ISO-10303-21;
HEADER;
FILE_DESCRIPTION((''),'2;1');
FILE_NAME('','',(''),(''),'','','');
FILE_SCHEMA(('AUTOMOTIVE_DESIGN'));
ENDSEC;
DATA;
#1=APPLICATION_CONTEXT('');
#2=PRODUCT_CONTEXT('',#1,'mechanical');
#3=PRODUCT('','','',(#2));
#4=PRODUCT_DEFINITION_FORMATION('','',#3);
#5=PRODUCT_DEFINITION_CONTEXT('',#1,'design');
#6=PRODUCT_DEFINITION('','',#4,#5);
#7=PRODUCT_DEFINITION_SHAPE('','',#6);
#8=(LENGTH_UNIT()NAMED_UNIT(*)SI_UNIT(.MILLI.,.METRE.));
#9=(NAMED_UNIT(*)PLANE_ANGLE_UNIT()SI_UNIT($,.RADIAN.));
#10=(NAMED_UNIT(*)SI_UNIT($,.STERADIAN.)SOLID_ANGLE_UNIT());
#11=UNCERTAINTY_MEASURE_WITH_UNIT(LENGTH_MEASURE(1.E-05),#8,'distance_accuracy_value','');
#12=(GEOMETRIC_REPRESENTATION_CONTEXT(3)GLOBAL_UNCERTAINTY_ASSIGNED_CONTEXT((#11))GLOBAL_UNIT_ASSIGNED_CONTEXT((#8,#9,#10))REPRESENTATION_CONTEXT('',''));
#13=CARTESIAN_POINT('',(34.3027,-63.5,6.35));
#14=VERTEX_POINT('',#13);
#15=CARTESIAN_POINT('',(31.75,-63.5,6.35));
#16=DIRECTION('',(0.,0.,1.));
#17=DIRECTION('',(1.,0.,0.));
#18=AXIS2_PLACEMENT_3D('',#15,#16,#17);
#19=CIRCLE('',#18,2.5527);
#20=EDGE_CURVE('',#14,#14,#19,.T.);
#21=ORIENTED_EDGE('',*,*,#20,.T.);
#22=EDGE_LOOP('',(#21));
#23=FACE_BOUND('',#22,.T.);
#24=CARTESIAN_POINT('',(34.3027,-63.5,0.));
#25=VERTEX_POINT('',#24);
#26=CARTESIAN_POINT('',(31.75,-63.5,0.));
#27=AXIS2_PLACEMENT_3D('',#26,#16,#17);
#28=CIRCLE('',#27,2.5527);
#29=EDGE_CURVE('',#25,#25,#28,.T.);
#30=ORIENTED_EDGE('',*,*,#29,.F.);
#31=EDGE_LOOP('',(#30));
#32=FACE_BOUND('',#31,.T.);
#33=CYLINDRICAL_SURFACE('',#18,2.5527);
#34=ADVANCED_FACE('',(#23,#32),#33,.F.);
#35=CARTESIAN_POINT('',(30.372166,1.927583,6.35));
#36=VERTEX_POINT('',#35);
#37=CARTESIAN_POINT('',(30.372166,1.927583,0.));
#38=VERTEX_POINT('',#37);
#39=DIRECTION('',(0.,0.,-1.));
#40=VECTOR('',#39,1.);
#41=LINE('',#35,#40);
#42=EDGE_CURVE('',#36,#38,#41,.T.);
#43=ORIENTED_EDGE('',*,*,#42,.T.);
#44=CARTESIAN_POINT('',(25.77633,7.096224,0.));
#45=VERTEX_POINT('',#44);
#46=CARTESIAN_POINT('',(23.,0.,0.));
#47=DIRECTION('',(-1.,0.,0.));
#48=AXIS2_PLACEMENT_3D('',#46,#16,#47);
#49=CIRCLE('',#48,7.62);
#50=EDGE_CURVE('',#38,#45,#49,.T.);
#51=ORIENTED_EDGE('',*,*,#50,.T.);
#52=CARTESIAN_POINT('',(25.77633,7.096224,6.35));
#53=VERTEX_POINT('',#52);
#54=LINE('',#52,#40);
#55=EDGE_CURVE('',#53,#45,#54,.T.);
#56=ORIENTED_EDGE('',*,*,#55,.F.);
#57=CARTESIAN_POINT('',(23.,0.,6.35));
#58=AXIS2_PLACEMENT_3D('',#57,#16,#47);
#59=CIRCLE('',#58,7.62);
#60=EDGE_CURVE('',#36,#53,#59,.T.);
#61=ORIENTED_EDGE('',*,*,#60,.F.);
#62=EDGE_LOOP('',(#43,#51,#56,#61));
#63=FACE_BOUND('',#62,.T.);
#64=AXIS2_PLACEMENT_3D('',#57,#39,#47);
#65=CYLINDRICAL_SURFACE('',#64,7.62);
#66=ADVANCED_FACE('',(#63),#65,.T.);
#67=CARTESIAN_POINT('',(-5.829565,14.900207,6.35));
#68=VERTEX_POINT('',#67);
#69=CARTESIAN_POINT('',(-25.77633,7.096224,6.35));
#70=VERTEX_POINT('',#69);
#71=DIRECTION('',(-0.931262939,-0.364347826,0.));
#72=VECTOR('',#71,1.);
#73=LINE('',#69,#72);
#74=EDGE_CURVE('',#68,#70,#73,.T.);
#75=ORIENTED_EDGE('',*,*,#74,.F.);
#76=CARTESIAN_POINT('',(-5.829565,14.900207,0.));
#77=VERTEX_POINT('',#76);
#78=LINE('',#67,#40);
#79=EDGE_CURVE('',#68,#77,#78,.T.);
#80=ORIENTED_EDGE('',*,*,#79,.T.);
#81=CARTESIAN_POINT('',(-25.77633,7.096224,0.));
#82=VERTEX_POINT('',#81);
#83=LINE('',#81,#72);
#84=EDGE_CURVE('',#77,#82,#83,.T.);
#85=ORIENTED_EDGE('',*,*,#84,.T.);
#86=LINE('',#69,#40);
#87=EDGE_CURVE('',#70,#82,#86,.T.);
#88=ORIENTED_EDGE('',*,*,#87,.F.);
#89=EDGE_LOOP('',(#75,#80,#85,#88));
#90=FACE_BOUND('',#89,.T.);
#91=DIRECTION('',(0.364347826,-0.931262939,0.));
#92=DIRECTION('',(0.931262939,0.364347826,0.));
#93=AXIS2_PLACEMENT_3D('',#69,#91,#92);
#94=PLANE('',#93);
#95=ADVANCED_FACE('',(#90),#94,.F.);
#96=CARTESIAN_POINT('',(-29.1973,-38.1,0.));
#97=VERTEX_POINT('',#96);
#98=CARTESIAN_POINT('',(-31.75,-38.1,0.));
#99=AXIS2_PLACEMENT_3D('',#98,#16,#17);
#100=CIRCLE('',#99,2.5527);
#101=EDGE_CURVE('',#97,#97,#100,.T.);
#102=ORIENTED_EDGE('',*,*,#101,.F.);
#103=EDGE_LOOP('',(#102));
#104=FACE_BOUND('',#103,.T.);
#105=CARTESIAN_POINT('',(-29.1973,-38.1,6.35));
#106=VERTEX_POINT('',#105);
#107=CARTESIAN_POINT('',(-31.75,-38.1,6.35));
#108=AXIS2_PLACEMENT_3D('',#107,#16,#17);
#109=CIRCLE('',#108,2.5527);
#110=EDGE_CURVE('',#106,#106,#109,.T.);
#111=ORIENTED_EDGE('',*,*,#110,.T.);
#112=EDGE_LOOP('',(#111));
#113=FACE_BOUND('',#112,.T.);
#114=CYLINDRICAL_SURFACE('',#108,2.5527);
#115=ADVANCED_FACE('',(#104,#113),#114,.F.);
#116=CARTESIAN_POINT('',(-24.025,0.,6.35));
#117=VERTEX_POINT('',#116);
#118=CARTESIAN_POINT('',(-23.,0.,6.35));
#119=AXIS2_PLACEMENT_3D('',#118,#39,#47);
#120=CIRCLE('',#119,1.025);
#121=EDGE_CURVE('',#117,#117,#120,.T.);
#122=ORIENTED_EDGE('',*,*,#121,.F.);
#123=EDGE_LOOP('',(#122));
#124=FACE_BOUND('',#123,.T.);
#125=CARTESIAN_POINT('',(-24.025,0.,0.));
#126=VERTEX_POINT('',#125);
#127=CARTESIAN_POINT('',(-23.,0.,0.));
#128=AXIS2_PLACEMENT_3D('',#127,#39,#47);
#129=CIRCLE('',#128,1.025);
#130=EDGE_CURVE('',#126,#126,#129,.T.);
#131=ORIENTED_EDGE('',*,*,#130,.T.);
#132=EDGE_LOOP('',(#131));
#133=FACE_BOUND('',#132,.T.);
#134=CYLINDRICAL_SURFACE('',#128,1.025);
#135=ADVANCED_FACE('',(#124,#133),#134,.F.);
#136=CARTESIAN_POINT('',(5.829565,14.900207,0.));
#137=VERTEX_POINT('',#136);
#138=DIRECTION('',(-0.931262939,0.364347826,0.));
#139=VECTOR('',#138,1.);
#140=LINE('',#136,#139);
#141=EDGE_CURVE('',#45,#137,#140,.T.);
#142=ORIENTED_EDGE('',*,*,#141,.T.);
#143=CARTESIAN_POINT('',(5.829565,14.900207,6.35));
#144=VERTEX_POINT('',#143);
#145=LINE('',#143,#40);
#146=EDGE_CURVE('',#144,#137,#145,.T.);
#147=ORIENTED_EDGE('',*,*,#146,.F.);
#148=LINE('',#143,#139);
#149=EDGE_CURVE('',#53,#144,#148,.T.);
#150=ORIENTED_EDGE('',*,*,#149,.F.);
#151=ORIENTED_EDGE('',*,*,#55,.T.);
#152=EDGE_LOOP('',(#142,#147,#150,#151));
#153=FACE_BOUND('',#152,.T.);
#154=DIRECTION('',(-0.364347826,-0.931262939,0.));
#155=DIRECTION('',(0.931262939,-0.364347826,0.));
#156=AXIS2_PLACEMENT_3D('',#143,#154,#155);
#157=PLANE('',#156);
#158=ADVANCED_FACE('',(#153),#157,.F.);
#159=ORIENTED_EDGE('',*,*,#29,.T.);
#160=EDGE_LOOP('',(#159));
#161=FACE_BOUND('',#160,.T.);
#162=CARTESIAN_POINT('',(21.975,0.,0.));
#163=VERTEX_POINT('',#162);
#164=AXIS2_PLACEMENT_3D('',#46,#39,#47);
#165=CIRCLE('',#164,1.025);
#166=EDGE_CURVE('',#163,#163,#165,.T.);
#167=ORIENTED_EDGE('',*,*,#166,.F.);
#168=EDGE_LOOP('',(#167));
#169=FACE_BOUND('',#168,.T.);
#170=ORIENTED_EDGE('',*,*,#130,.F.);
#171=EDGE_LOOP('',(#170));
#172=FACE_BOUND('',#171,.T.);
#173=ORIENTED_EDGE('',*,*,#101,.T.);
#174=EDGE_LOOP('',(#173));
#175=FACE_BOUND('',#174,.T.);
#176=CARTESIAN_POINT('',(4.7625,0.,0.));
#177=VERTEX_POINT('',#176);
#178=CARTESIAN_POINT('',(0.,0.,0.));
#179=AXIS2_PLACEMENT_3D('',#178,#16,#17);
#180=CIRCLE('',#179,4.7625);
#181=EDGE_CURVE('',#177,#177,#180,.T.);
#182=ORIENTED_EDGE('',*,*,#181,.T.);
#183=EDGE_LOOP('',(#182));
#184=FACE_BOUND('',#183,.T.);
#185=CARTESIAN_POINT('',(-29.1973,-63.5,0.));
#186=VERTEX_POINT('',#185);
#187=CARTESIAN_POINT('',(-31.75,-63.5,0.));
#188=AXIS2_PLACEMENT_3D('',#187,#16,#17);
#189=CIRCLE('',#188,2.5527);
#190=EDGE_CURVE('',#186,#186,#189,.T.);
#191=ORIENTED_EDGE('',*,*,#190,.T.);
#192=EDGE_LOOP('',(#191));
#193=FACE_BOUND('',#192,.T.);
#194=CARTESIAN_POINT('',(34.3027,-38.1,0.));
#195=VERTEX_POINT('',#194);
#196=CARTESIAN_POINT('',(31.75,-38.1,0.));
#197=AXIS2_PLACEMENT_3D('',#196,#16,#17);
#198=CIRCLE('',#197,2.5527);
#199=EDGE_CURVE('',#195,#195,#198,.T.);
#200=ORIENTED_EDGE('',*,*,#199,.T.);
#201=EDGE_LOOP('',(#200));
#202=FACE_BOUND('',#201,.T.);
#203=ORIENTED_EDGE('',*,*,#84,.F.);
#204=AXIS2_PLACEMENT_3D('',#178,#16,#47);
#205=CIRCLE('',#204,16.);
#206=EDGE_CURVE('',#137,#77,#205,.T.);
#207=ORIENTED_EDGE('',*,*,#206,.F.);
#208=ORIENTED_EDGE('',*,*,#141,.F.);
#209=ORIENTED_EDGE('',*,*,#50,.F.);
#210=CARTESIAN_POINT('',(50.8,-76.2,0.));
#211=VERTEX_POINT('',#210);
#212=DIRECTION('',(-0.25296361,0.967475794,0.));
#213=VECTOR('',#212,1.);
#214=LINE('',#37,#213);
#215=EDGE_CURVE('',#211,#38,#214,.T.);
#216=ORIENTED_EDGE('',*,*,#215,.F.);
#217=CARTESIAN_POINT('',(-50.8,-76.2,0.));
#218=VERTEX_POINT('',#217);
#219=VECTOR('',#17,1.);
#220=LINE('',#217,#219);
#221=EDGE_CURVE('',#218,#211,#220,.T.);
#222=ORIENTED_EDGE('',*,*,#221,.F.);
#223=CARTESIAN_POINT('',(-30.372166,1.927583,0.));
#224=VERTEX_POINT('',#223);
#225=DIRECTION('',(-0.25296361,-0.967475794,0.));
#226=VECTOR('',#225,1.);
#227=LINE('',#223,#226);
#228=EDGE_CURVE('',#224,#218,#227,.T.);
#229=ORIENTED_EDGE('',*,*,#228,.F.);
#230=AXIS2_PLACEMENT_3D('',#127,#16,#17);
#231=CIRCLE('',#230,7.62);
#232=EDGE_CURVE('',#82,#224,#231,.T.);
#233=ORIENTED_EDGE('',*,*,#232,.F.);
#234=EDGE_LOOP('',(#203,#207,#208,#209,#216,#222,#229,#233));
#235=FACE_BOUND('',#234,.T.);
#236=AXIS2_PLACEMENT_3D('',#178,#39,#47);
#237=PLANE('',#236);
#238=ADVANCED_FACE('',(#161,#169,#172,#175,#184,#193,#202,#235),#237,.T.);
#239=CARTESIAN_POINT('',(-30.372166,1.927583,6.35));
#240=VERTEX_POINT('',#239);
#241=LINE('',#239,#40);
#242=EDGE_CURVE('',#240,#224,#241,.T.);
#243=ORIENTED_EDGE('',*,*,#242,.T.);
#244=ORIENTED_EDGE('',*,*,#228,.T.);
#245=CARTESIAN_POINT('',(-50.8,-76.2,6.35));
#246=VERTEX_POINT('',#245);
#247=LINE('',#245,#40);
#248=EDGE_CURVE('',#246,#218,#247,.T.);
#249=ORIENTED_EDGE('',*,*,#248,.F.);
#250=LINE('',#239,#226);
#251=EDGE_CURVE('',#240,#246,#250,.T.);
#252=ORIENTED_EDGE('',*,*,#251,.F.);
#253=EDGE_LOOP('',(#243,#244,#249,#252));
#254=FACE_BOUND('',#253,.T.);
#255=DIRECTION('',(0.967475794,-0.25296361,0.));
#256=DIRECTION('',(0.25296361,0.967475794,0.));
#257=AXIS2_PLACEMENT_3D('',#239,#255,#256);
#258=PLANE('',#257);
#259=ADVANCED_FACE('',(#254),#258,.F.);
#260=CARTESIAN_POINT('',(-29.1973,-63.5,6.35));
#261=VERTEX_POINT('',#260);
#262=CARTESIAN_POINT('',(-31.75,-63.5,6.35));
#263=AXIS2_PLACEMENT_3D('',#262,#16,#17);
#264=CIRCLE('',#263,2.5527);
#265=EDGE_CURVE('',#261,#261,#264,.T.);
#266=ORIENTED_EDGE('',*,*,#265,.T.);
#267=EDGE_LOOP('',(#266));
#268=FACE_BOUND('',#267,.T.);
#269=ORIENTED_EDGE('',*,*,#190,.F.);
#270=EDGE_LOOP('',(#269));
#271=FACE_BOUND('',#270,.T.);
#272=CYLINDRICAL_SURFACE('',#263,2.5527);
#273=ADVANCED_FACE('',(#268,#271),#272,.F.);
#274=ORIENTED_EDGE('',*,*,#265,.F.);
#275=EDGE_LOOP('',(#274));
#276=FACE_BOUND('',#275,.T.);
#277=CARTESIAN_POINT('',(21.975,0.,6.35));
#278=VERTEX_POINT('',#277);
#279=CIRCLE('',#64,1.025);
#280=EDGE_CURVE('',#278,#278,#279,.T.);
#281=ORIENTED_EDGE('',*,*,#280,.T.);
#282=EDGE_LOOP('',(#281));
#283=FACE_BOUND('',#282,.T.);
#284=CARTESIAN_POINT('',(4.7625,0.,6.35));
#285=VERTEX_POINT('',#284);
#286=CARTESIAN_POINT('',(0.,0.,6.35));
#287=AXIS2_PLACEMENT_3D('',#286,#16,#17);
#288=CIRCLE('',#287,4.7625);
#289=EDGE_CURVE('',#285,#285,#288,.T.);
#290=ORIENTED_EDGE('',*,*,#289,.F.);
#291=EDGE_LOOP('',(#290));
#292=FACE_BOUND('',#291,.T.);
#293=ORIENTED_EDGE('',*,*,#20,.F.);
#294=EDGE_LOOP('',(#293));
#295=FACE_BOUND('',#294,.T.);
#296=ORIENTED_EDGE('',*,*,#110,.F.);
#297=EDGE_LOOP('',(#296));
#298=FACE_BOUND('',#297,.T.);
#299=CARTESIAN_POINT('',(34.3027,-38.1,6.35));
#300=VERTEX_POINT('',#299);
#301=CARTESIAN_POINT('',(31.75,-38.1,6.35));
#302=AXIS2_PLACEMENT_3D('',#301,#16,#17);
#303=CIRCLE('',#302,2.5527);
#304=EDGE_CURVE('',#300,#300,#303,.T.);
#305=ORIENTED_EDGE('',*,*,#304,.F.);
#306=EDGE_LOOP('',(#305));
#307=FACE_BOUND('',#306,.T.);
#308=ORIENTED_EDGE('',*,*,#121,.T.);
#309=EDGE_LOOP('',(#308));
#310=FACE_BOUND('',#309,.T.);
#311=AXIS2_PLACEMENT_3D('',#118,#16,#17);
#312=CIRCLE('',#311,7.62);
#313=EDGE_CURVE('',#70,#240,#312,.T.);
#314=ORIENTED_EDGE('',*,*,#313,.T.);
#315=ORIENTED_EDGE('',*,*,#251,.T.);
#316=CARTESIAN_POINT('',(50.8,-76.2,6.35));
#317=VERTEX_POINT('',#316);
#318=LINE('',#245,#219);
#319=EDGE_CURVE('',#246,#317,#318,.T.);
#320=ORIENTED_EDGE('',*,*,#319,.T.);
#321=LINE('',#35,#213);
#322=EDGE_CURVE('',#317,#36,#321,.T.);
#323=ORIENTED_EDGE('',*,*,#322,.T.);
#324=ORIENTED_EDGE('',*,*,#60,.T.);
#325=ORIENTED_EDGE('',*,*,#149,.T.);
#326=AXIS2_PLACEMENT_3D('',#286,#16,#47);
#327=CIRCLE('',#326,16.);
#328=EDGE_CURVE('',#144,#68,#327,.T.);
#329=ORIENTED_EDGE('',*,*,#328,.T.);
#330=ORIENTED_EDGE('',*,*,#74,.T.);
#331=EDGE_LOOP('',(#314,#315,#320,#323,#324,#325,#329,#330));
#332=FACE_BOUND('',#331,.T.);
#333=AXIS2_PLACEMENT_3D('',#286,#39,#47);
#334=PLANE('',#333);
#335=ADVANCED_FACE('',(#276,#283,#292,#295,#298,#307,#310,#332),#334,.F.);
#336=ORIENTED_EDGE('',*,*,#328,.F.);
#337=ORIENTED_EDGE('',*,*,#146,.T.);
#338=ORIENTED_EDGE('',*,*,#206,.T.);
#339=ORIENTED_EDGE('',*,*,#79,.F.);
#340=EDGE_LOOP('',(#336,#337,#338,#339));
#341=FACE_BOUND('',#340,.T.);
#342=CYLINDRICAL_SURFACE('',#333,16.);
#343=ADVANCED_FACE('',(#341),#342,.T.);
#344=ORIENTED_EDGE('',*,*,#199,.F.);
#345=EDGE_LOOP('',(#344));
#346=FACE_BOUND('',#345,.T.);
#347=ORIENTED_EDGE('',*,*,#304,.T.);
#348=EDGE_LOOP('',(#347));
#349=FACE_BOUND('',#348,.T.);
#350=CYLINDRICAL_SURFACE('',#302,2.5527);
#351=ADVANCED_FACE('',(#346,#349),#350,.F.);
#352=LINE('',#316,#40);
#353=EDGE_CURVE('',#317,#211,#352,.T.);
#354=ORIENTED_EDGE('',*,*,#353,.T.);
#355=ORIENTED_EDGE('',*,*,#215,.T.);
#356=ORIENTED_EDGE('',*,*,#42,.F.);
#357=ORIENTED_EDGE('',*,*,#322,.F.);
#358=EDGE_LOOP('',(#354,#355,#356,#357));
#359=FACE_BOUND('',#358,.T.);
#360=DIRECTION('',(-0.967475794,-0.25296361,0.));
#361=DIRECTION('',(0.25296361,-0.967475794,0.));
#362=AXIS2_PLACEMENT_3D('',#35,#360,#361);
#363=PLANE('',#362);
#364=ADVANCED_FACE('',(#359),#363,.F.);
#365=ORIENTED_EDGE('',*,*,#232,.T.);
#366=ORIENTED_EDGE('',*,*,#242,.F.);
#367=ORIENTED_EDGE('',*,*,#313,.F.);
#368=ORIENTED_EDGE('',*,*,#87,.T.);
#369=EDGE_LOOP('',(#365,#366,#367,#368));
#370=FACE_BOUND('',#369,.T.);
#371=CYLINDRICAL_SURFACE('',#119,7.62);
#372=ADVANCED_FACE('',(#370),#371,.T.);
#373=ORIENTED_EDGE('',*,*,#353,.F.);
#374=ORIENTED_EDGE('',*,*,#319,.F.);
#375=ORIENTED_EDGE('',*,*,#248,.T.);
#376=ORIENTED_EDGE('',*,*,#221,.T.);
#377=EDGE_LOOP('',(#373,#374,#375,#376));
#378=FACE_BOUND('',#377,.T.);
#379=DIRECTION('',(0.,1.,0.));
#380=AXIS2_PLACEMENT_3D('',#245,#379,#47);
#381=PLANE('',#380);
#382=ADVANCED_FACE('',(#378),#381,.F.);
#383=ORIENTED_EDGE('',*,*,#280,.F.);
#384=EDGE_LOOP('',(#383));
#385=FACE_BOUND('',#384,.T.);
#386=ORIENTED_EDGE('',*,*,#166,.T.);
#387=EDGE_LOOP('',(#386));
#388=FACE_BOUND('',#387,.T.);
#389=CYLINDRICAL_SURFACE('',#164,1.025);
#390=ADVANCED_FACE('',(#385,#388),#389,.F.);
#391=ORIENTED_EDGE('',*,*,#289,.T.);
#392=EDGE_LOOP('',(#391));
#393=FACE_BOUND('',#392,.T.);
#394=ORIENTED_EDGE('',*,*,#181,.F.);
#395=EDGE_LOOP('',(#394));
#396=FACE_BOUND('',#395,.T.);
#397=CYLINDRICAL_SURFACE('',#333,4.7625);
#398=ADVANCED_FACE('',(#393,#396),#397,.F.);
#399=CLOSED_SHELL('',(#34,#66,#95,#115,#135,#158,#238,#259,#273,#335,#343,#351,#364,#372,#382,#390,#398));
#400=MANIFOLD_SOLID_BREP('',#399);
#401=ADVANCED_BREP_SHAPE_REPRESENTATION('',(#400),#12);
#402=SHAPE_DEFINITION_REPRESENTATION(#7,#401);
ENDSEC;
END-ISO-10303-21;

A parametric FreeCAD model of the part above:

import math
import FreeCAD as App
import Part
import Sketcher
from FreeCAD import Vector
Q = App.Units.Quantity

doc = App.newDocument("Part")
body = doc.addObject("PartDesign::Body", "Body")

# Sketch on XY plane
sketch1 = body.newObject("Sketcher::SketchObject", "Sketch")
sketch1.AttachmentSupport = (doc.getObject("XY_Plane"), [""])
sketch1.MapMode = "FlatFace"
sketch1.addGeometry([
    Part.LineSegment(Vector(-5.8, 14.9, 0), Vector(-25.8, 7.1, 0)),  # 0
    Part.ArcOfCircle(Part.Circle(Vector(-23, 0, 0), Vector(0, 0, 1), 7.6), math.radians(111), math.radians(165)),  # 1
    Part.LineSegment(Vector(-30.4, 1.9, 0), Vector(-50.8, -76.2, 0)),  # 2
    Part.LineSegment(Vector(-50.8, -76.2, 0), Vector(50.8, -76.2, 0)),  # 3
    Part.LineSegment(Vector(50.8, -76.2, 0), Vector(30.4, 1.9, 0)),  # 4
    Part.ArcOfCircle(Part.Circle(Vector(23, 0, 0), Vector(0, 0, 1), 7.6), math.radians(15), math.radians(69)),  # 5
    Part.LineSegment(Vector(25.8, 7.1, 0), Vector(5.8, 14.9, 0)),  # 6
    Part.ArcOfCircle(Part.Circle(Vector(0, 0, 0), Vector(0, 0, 1), 16), math.radians(69), math.radians(111)),  # 7
    Part.Circle(Vector(31.8, -63.5, 0), Vector(0, 0, 1), 1.6),  # 8
    Part.Circle(Vector(31.8, -38.1, 0), Vector(0, 0, 1), 1.6),  # 9
    Part.Circle(Vector(-31.8, -63.5, 0), Vector(0, 0, 1), 1.6),  # 10
    Part.Circle(Vector(-31.8, -38.1, 0), Vector(0, 0, 1), 1.6),  # 11
    Part.Circle(Vector(0, 0, 0), Vector(0, 0, 1), 4.8),  # 12
], False)
sketch1.addConstraint([
    Sketcher.Constraint("Tangent", 0, 2, 1, 1),
    Sketcher.Constraint("Tangent", 1, 2, 2, 1),
    Sketcher.Constraint("Coincident", 2, 2, 3, 1),
    Sketcher.Constraint("Coincident", 3, 2, 4, 1),
    Sketcher.Constraint("Tangent", 4, 2, 5, 1),
    Sketcher.Constraint("Tangent", 5, 2, 6, 1),
    Sketcher.Constraint("Tangent", 6, 2, 7, 1),
    Sketcher.Constraint("Tangent", 7, 2, 0, 1),
    Sketcher.Constraint("Horizontal", 3),
    Sketcher.Constraint("Coincident", 7, 3, -1, 1),
    Sketcher.Constraint("Coincident", 12, 3, -1, 1),
    Sketcher.Constraint("Equal", 1, 5),
    Sketcher.Constraint("Equal", 8, 9),
    Sketcher.Constraint("Equal", 9, 10),
    Sketcher.Constraint("Equal", 10, 11),
    Sketcher.Constraint("Symmetric", 1, 3, 5, 3, -1, 1),
    Sketcher.Constraint("Symmetric", 8, 3, 10, 3, -2),
    Sketcher.Constraint("Symmetric", 9, 3, 11, 3, -2),
    Sketcher.Constraint("Symmetric", 1, 2, 4, 2, -2),
    Sketcher.Constraint("Vertical", 8, 3, 9, 3),
    Sketcher.Constraint("Radius", 1, Q("0.3 in")),
    Sketcher.Constraint("DistanceX", 3, 1, 3, 2, Q("4 in")),
    Sketcher.Constraint("Diameter", 8, Q("0.125 in")),
    Sketcher.Constraint("Diameter", 12, Q("0.375 in")),
    Sketcher.Constraint("DistanceY", 2, 2, -1, 1, Q("3 in")),
    Sketcher.Constraint("DistanceY", 8, 3, 9, 3, Q("1 in")),
    Sketcher.Constraint("DistanceY", 8, 3, -1, 1, Q("2.5 in")),
    Sketcher.Constraint("DistanceX", 10, 3, 8, 3, Q("2.5 in")),
    Sketcher.Constraint("Radius", 7, 16.0),
    Sketcher.Constraint("DistanceX", 1, 3, -1, 1, 23.0),
])
pad1 = body.newObject("PartDesign::Pad", "Pad")
pad1.Profile = sketch1
pad1.Length = Q("0.25 in")

# Sketch on XY plane
sketch2 = body.newObject("Sketcher::SketchObject", "Sketch001")
sketch2.AttachmentSupport = (doc.getObject("XY_Plane"), [""])
sketch2.MapMode = "FlatFace"
sketch2.addGeometry([
    Part.Circle(Vector(23, 0, 0), Vector(0, 0, 1), 1),
    Part.Circle(Vector(-23, 0, 0), Vector(0, 0, 1), 1),
], False)
sketch2.addConstraint([
    Sketcher.Constraint("Equal", 0, 1),
    Sketcher.Constraint("Symmetric", 0, 3, 1, 3, -1, 1),
    Sketcher.Constraint("PointOnObject", 0, 3, -1),
    Sketcher.Constraint("Diameter", 0, 2.05),
    Sketcher.Constraint("DistanceX", -1, 1, 0, 3, 23.0),
])
doc.recompute()
hole = body.newObject("PartDesign::Hole", "Hole")
hole.Profile = sketch2
hole.ThreadType = "None"
hole.Diameter = 2.05
hole.DepthType = "ThroughAll"
hole.Reversed = True

# Sketch on XY plane
sketch3 = body.newObject("Sketcher::SketchObject", "Sketch002")
sketch3.AttachmentSupport = (doc.getObject("XY_Plane"), [""])
sketch3.MapMode = "FlatFace"
sketch3.AttachmentOffset = App.Placement(Vector(0, 0, 0.25 * 25.4), App.Rotation())
sketch3.addGeometry([
    Part.Circle(Vector(-31.8, -38.1, 0), Vector(0, 0, 1), 2.6),
    Part.Circle(Vector(-31.8, -63.5, 0), Vector(0, 0, 1), 2.6),
    Part.Circle(Vector(31.8, -63.5, 0), Vector(0, 0, 1), 2.6),
    Part.Circle(Vector(31.8, -38.1, 0), Vector(0, 0, 1), 2.6),
], False)
sketch3.addConstraint([
    Sketcher.Constraint("Equal", 0, 1),
    Sketcher.Constraint("Equal", 1, 2),
    Sketcher.Constraint("Equal", 2, 3),
    Sketcher.Constraint("Symmetric", 1, 3, 2, 3, -2),
    Sketcher.Constraint("Symmetric", 0, 3, 3, 3, -2),
    Sketcher.Constraint("Vertical", 0, 3, 1, 3),
    Sketcher.Constraint("Diameter", 0, Q("0.201 in")),
    Sketcher.Constraint("DistanceY", 1, 3, 0, 3, Q("1 in")),
    Sketcher.Constraint("DistanceY", 0, 3, -1, 1, Q("1.5 in")),
    Sketcher.Constraint("DistanceX", 1, 3, 2, 3, Q("2.5 in")),
])
doc.recompute()
hole2 = body.newObject("PartDesign::Hole", "Hole001")
hole2.Profile = sketch3
hole2.ThreadType = "None"
hole2.Diameter = Q("0.201 in")
hole2.DepthType = "ThroughAll"

doc.recompute()
